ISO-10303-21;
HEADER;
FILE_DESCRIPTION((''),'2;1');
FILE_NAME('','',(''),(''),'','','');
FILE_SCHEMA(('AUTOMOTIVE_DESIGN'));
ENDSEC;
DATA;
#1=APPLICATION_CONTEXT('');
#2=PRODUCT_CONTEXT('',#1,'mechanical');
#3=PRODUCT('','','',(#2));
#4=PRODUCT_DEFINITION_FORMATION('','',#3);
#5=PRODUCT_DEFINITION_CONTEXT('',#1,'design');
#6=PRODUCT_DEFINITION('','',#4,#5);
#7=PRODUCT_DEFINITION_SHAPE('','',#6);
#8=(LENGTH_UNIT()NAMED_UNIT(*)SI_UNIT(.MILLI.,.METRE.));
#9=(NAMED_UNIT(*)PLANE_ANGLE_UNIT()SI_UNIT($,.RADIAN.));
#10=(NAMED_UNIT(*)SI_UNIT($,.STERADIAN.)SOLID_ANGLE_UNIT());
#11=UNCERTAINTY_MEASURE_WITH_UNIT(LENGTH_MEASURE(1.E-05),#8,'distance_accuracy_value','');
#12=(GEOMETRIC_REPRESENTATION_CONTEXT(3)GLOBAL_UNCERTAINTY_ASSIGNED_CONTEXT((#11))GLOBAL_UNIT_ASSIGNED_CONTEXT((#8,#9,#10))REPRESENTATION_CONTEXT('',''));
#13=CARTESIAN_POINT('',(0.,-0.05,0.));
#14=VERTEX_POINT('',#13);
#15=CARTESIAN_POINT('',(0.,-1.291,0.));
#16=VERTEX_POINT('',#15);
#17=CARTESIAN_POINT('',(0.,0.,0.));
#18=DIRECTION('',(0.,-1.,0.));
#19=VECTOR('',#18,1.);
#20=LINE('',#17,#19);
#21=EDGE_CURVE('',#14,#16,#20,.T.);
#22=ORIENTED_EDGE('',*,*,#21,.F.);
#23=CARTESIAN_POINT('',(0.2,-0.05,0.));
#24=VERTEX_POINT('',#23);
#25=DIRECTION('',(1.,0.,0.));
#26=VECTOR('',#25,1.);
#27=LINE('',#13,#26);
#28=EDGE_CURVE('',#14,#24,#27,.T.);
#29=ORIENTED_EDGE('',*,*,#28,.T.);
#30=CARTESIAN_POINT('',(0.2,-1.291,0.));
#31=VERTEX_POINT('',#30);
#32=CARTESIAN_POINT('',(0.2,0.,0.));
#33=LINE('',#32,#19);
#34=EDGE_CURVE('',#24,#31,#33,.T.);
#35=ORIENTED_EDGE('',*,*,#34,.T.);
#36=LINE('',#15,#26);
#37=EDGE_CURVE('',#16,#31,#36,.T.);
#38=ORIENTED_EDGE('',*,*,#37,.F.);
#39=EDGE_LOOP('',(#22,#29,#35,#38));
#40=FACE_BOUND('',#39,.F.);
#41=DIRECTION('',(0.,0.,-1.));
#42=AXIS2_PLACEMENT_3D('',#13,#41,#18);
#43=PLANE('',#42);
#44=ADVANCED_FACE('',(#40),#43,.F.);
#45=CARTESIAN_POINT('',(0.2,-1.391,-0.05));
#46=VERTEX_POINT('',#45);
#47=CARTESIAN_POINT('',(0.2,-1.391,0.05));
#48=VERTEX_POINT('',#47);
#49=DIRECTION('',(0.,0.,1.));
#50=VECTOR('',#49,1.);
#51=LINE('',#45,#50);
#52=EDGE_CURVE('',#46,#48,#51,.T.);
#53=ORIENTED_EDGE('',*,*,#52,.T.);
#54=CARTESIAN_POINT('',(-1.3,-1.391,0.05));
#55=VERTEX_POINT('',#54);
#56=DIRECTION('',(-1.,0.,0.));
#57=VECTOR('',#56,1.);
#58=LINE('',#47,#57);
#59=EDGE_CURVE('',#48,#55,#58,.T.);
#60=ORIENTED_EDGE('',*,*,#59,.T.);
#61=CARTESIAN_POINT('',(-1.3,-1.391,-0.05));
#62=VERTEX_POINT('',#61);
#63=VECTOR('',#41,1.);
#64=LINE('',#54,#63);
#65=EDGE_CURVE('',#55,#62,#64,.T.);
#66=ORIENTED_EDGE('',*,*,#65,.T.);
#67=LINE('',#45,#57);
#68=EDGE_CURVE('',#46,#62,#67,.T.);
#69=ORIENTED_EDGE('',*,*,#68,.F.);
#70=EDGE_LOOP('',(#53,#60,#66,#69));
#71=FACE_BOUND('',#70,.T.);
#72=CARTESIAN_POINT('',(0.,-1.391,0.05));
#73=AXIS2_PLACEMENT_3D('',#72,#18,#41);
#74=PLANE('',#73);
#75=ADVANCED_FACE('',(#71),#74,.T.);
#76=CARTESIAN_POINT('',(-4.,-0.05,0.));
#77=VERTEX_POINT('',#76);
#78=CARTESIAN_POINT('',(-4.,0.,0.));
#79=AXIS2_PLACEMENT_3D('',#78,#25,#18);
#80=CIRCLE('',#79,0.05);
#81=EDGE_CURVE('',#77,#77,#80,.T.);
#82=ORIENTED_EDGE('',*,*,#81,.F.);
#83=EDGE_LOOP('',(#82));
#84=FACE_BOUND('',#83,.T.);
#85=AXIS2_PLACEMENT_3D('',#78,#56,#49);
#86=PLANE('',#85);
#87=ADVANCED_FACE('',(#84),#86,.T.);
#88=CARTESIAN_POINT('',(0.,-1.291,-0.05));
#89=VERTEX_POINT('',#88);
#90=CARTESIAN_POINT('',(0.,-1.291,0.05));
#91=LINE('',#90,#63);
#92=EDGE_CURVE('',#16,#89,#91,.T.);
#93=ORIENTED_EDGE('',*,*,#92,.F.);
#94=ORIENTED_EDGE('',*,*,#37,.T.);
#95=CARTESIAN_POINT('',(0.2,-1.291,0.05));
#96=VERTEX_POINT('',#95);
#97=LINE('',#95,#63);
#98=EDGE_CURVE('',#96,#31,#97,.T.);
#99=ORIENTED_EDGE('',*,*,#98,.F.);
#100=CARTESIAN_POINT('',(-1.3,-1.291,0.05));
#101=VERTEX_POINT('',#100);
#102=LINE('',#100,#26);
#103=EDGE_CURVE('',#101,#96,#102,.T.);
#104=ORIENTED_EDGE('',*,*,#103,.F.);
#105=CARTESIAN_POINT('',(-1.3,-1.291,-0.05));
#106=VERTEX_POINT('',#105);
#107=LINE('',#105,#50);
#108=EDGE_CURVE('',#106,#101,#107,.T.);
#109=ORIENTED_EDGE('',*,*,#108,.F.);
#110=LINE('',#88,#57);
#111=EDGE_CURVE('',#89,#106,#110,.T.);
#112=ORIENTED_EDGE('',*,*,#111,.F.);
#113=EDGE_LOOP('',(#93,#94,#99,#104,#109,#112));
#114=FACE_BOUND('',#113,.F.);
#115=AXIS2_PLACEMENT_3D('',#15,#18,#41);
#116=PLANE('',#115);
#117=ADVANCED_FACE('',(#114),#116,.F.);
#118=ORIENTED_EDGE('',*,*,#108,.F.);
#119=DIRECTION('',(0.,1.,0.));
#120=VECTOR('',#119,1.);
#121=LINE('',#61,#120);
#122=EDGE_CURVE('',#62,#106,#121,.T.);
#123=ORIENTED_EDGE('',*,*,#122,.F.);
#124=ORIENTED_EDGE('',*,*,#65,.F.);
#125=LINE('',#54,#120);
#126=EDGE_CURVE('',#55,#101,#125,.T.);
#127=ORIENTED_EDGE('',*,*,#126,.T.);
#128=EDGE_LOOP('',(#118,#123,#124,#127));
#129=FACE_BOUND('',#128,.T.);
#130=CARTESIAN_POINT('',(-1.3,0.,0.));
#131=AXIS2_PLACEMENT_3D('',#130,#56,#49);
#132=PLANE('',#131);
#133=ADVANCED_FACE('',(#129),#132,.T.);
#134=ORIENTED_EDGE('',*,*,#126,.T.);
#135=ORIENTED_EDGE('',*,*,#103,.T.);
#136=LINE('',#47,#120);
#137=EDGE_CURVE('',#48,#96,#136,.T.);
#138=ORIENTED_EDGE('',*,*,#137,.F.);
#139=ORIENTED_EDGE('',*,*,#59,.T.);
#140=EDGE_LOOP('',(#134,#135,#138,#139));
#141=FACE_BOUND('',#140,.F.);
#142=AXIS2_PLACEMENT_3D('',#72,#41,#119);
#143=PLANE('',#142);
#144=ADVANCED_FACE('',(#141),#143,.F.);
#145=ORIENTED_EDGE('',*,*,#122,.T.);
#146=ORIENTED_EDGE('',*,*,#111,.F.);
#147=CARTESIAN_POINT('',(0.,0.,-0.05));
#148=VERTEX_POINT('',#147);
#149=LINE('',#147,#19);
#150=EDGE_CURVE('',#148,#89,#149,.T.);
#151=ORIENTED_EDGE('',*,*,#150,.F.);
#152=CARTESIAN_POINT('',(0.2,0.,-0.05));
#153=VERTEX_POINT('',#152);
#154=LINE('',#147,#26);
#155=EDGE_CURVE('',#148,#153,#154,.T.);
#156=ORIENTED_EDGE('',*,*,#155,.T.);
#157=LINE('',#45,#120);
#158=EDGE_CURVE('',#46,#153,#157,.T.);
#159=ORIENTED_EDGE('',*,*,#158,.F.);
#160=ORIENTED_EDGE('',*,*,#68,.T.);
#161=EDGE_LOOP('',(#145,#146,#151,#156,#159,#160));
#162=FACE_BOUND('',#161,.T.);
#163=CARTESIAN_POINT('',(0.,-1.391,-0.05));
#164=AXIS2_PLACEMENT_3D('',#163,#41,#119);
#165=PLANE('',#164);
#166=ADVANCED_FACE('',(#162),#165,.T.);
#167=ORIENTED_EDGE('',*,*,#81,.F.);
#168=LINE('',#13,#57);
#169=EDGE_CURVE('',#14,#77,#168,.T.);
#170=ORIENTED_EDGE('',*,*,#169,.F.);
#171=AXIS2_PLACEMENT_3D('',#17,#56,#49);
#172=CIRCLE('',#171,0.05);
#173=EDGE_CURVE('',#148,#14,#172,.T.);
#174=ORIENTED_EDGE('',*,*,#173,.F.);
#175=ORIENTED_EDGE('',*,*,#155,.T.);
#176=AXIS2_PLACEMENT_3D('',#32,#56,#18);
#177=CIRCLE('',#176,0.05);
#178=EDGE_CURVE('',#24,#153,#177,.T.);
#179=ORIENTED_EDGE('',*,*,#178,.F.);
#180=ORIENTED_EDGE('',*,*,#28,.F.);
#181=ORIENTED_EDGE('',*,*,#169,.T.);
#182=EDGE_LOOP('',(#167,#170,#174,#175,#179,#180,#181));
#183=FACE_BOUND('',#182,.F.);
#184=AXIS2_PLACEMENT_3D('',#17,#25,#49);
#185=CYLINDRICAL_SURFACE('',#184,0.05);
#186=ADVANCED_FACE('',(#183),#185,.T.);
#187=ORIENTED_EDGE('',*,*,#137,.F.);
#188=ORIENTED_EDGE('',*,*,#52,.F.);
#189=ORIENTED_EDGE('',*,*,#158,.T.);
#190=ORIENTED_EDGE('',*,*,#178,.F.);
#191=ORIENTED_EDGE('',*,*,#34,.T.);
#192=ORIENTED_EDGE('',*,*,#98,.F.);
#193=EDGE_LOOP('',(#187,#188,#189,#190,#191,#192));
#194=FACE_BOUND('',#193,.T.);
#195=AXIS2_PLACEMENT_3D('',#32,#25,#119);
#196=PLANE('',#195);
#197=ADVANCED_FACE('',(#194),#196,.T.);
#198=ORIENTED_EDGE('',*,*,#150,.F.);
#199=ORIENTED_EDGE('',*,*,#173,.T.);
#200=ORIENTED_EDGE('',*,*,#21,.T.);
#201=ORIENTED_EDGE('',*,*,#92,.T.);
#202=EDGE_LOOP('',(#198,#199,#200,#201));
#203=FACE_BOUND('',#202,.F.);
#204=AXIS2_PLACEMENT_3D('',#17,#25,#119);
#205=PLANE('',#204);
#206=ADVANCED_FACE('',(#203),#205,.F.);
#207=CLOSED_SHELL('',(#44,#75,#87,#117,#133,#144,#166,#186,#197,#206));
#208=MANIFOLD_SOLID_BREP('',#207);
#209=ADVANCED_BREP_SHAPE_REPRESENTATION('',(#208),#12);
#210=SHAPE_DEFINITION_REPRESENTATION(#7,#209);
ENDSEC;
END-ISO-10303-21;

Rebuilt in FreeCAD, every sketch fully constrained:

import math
import FreeCAD as App
import Part
import Sketcher
from FreeCAD import Vector
Q = App.Units.Quantity

doc = App.newDocument("Part")
body = doc.addObject("PartDesign::Body", "Body")

sketch1 = body.newObject("Sketcher::SketchObject", "Sketch")
sketch1.AttachmentSupport = (doc.getObject("YZ_Plane"), [""])
sketch1.MapMode = "FlatFace"
sketch1.addGeometry([
    Part.LineSegment(Vector(-0.05, 0, 0), Vector(-1.29, 0, 0)),
    Part.LineSegment(Vector(-1.29, 0, 0), Vector(-1.29, 0.05, 0)),
    Part.LineSegment(Vector(-1.29, 0.05, 0), Vector(-1.39, 0.05, 0)),
    Part.LineSegment(Vector(-1.39, 0.05, 0), Vector(-1.39, -0.05, 0)),
    Part.LineSegment(Vector(-1.39, -0.05, 0), Vector(0, -0.05, 0)),
    Part.ArcOfCircle(Part.Circle(Vector(0, 0, 0), Vector(0, 0, 1), 0.05), math.radians(-90), math.radians(180)),
], False)
sketch1.addConstraint([
    Sketcher.Constraint("Coincident", 0, 2, 1, 1),
    Sketcher.Constraint("Coincident", 1, 2, 2, 1),
    Sketcher.Constraint("Coincident", 2, 2, 3, 1),
    Sketcher.Constraint("Coincident", 3, 2, 4, 1),
    Sketcher.Constraint("Tangent", 4, 2, 5, 1),
    Sketcher.Constraint("Coincident", 5, 2, 0, 1),
    Sketcher.Constraint("Horizontal", 0),
    Sketcher.Constraint("Vertical", 1),
    Sketcher.Constraint("Horizontal", 2),
    Sketcher.Constraint("Vertical", 3),
    Sketcher.Constraint("Horizontal", 4),
    Sketcher.Constraint("Coincident", 5, 3, -1, 1),
    Sketcher.Constraint("PointOnObject", 0, 2, -1),
    Sketcher.Constraint("Equal", 2, 3),
    Sketcher.Constraint("Radius", 5, Q("0.05 mm")),
    Sketcher.Constraint("DistanceX", 2, 2, 2, 1, Q("0.1 mm")),
    Sketcher.Constraint("DistanceX", 2, 2, 5, 2, Q("1.341 mm")),
])
pad1 = body.newObject("PartDesign::Pad", "Pad")
pad1.Profile = sketch1
pad1.Length = 0.2

sketch2 = body.newObject("Sketcher::SketchObject", "Sketch001")
sketch2.AttachmentSupport = (doc.getObject("YZ_Plane"), [""])
sketch2.MapMode = "FlatFace"
sketch2.addGeometry(Part.Circle(Vector(0, 0, 0), Vector(0, 0, 1), 0.05), False)
sketch2.addConstraint([
    Sketcher.Constraint("Coincident", 0, 3, -1, 1),
    Sketcher.Constraint("Diameter", 0, Q("0.1 mm")),
])
pad2 = body.newObject("PartDesign::Pad", "Pad001")
pad2.Profile = sketch2
pad2.Length = 4
pad2.Reversed = True

sketch3 = body.newObject("Sketcher::SketchObject", "Sketch002")
sketch3.AttachmentSupport = (doc.getObject("YZ_Plane"), [""])
sketch3.MapMode = "FlatFace"
sketch3.addGeometry([
    Part.LineSegment(Vector(-1.29, -0.05, 0), Vector(-1.39, -0.05, 0)),
    Part.LineSegment(Vector(-1.39, -0.05, 0), Vector(-1.39, 0.05, 0)),
    Part.LineSegment(Vector(-1.39, 0.05, 0), Vector(-1.29, 0.05, 0)),
    Part.LineSegment(Vector(-1.29, 0.05, 0), Vector(-1.29, -0.05, 0)),
], False)
sketch3.addConstraint([
    Sketcher.Constraint("Coincident", 0, 2, 1, 1),
    Sketcher.Constraint("Coincident", 1, 2, 2, 1),
    Sketcher.Constraint("Coincident", 2, 2, 3, 1),
    Sketcher.Constraint("Coincident", 3, 2, 0, 1),
    Sketcher.Constraint("Horizontal", 0),
    Sketcher.Constraint("Vertical", 1),
    Sketcher.Constraint("Horizontal", 2),
    Sketcher.Constraint("Vertical", 3),
    Sketcher.Constraint("Equal", 2, 1),
    Sketcher.Constraint("DistanceX", 0, 2, 0, 1, Q("0.1 mm")),
    Sketcher.Constraint("DistanceY", 0, 2, -1, 1, Q("0.05 mm")),
    Sketcher.Constraint("DistanceX", 0, 2, -1, 1, Q("1.391 mm")),
])
pad3 = body.newObject("PartDesign::Pad", "Pad002")
pad3.Profile = sketch3
pad3.Length = 1.3
pad3.Reversed = True

doc.recompute()
